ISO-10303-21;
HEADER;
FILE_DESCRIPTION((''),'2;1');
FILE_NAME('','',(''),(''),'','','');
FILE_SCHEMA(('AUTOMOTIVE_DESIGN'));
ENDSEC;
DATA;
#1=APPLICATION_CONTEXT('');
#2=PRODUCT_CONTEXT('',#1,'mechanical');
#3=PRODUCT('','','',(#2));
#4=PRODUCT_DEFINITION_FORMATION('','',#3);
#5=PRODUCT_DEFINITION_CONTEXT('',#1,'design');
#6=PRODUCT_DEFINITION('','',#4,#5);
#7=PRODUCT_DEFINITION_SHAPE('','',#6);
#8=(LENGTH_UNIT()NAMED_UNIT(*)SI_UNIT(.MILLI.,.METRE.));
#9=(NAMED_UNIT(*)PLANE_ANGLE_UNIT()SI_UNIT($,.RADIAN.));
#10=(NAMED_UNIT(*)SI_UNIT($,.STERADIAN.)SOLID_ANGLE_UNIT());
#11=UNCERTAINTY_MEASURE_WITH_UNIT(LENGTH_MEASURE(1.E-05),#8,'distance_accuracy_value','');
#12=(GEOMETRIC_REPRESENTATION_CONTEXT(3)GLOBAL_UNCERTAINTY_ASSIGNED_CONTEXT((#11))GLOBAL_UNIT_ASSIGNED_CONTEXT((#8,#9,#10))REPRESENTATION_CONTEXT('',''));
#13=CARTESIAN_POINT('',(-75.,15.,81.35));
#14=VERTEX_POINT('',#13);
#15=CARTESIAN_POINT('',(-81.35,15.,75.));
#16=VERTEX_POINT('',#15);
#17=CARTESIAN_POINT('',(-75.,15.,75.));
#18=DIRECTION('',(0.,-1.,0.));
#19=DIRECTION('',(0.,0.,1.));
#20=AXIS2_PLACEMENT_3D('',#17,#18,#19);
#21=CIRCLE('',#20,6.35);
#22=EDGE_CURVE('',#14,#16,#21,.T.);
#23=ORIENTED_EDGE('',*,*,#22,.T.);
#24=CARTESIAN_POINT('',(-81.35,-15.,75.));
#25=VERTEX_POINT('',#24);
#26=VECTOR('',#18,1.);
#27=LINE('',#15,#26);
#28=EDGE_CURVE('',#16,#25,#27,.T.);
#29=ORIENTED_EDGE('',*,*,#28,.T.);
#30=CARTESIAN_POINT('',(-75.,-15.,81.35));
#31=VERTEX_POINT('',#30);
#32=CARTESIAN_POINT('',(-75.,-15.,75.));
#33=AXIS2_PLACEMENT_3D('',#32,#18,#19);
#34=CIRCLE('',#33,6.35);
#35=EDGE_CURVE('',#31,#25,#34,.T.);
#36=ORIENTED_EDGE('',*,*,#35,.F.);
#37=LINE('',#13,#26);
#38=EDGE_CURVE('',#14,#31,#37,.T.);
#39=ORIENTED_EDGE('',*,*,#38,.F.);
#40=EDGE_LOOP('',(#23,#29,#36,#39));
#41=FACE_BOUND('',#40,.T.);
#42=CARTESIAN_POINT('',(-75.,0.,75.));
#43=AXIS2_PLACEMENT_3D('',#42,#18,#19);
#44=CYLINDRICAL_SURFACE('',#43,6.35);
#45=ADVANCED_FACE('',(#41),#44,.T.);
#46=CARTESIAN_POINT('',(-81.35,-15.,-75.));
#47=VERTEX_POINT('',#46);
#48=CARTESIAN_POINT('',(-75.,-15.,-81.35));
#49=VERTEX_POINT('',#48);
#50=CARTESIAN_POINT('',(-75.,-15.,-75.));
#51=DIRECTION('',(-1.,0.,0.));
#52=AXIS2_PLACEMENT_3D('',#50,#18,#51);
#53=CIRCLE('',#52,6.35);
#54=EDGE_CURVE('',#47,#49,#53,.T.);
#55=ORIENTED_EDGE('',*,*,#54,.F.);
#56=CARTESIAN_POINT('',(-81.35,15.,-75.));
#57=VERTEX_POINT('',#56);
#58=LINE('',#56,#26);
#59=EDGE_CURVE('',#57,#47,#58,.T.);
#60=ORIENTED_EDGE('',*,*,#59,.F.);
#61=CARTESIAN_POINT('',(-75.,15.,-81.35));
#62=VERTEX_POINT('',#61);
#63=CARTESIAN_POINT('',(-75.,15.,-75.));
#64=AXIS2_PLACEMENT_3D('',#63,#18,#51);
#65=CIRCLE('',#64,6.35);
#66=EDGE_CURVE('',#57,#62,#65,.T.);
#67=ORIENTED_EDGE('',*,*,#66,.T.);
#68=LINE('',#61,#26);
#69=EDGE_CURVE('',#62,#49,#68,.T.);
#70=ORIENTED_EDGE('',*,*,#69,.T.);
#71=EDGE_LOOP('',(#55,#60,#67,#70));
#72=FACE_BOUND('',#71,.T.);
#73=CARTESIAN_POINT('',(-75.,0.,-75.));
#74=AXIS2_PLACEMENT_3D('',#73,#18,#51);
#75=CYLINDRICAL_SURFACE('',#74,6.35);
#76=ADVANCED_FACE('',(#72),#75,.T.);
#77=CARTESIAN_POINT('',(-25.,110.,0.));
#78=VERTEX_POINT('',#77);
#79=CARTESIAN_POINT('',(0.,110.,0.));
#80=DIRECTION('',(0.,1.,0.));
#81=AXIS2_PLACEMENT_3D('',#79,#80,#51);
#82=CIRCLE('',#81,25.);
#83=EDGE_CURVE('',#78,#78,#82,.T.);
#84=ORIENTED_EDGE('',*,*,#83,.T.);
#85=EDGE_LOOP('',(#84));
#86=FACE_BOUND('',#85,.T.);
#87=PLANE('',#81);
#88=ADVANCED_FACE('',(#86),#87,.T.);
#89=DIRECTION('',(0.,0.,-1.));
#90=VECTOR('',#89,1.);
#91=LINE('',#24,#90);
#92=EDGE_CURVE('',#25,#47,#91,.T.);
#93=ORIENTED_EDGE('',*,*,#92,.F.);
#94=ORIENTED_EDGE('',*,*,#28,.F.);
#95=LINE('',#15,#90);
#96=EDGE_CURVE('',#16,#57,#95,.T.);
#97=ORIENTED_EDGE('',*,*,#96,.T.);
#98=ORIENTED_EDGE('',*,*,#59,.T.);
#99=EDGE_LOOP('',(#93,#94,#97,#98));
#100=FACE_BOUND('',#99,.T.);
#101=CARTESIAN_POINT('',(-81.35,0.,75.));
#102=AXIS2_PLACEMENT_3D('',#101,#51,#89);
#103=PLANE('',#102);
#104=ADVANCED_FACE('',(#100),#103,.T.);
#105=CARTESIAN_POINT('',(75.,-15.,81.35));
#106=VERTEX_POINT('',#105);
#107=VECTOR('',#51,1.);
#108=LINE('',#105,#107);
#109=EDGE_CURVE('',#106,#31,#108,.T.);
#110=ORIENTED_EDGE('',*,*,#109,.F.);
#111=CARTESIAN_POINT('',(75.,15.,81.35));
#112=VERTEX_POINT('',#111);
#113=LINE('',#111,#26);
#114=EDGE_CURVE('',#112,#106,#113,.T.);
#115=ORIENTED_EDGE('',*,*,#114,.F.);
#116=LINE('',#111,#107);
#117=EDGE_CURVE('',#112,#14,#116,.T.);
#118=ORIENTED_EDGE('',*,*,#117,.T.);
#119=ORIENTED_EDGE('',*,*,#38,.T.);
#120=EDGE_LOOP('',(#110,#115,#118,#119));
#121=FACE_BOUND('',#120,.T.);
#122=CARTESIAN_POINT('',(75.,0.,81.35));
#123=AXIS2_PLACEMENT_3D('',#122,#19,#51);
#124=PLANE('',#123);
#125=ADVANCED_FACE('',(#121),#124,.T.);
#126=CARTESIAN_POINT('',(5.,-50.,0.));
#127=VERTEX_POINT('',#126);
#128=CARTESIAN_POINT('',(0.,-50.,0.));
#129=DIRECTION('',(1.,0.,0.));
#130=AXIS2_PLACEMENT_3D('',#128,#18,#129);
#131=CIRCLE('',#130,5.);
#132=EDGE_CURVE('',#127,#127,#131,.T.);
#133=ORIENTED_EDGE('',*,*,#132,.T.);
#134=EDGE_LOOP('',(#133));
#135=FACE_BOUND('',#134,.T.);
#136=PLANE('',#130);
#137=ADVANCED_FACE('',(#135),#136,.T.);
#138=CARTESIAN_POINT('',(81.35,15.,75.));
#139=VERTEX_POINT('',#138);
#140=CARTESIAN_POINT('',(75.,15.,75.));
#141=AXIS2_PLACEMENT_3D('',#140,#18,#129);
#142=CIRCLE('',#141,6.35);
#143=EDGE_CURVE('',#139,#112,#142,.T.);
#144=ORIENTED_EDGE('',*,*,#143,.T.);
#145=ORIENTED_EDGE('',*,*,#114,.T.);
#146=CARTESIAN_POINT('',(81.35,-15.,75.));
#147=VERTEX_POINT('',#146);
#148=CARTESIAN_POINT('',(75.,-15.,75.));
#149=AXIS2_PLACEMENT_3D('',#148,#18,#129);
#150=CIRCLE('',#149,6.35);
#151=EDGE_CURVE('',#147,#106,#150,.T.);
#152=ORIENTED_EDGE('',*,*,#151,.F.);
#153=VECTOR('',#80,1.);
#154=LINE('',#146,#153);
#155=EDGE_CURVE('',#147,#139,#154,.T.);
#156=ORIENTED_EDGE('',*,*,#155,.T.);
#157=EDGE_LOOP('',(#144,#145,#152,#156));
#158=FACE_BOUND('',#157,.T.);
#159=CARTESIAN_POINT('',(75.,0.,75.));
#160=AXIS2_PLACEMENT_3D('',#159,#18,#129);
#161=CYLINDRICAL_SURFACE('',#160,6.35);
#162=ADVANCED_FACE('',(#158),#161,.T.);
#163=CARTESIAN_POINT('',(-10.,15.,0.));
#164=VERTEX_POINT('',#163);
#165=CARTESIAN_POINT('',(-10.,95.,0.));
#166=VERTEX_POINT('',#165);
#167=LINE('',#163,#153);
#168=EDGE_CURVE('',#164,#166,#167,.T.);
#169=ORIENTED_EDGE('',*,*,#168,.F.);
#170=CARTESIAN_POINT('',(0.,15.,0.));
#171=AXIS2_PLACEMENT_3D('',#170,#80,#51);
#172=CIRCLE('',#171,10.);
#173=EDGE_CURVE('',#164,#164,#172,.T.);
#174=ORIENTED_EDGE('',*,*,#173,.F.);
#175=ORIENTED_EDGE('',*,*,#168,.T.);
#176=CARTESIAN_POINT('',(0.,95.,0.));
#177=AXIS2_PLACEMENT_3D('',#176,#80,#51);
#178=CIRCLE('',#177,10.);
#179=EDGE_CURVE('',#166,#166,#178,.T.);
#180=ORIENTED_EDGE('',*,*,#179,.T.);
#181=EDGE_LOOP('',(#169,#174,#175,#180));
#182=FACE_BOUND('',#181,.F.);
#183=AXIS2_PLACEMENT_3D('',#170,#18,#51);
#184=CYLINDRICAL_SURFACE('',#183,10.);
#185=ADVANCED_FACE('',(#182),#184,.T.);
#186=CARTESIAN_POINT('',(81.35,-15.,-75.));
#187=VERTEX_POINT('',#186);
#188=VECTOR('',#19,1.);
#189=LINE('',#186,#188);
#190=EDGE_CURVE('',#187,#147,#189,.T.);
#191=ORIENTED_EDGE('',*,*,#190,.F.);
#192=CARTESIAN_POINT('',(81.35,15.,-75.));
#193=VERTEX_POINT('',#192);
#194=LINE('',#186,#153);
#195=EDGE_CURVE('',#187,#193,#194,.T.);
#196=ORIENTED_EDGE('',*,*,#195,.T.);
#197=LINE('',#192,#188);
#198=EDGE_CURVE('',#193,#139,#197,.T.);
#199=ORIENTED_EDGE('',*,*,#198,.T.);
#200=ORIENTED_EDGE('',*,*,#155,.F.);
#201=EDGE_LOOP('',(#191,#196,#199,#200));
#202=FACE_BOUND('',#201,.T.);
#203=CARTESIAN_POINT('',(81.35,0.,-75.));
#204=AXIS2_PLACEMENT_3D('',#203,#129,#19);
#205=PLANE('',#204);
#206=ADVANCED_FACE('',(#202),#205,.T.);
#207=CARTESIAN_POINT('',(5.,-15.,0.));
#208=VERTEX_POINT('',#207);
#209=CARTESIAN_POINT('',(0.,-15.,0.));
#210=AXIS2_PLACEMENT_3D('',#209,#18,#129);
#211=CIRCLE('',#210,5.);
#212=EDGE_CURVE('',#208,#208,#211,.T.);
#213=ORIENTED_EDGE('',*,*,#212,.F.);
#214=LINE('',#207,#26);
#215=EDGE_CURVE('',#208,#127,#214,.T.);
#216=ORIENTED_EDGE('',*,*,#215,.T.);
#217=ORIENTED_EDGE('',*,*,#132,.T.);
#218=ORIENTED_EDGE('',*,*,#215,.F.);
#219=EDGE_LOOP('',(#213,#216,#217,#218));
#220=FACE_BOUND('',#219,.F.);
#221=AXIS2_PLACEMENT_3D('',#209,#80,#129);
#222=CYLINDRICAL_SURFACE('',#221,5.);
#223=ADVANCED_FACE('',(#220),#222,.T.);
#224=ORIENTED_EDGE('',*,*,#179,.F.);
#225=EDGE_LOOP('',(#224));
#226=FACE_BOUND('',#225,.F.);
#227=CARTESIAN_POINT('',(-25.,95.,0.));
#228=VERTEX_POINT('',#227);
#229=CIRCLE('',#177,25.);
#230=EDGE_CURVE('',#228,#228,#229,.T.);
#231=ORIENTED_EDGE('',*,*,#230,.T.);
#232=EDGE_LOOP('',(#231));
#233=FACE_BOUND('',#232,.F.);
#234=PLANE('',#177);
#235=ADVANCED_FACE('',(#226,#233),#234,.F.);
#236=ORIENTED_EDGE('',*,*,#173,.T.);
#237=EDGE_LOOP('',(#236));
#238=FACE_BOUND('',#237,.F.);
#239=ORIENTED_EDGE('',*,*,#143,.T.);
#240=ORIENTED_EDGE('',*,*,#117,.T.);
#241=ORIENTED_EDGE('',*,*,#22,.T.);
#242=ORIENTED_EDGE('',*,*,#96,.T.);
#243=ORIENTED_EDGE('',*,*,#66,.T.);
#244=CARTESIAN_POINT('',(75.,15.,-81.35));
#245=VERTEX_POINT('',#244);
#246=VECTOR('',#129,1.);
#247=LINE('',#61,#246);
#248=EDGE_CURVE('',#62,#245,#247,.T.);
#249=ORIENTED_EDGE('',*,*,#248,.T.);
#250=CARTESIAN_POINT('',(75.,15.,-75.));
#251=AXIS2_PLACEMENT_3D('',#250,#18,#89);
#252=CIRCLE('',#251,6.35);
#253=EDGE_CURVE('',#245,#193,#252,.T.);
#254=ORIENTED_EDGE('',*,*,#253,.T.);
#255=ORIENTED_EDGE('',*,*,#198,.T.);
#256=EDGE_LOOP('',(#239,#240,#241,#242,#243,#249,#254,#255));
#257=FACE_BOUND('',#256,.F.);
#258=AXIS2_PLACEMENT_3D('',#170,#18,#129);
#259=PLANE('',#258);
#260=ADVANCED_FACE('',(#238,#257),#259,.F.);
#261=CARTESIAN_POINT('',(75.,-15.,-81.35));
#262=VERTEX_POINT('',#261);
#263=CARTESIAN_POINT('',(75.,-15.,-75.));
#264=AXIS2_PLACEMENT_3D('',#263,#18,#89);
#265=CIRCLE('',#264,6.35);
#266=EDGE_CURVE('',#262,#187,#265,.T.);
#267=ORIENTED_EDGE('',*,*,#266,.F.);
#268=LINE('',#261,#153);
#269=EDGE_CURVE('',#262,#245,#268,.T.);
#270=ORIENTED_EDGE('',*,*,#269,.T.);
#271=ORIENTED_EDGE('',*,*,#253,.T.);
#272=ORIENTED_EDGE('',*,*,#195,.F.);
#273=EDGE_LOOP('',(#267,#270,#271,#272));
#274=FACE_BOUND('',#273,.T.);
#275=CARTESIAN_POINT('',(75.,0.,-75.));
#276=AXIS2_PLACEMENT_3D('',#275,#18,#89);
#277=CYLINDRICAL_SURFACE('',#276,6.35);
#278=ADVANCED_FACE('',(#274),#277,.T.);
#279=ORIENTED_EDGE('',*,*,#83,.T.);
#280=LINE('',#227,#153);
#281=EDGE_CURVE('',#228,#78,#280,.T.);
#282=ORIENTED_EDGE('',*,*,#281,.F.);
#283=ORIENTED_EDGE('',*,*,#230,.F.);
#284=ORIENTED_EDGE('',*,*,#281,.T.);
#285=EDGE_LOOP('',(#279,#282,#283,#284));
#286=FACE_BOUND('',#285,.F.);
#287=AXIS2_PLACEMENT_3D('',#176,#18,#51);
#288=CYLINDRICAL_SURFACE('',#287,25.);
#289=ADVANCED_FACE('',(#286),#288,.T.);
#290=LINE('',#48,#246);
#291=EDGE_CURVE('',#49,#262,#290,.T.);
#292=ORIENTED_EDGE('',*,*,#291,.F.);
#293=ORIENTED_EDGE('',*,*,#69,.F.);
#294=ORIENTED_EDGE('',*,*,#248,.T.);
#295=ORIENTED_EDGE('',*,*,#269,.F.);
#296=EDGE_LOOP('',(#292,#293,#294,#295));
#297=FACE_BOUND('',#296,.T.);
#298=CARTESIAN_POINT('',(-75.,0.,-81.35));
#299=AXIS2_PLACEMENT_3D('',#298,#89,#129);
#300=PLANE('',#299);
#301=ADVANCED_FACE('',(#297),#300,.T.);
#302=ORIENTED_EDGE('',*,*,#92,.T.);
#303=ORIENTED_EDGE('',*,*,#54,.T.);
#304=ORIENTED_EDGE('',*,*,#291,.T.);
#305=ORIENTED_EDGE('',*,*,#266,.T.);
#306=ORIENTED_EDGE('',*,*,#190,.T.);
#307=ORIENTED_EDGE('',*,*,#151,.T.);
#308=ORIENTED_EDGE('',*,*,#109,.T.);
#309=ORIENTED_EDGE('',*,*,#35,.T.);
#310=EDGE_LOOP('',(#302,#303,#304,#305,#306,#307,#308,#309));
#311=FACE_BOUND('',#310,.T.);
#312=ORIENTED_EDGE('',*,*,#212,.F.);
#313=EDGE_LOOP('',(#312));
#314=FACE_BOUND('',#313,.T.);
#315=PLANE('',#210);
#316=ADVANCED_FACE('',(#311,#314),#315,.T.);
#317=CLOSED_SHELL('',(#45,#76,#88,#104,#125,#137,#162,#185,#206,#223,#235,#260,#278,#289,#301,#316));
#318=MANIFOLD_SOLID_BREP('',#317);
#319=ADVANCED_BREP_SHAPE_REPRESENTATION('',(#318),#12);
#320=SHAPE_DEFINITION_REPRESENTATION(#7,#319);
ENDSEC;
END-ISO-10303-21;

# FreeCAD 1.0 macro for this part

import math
import FreeCAD as App
import Part
import Sketcher
Q = App.Units.Quantity

doc = App.newDocument("Part")
body = doc.addObject("PartDesign::Body", "Body")

sketch1 = body.newObject("Sketcher::SketchObject", "Sketch")
sketch1.AttachmentSupport = (doc.getObject("XZ_Plane"), [""])
sketch1.MapMode = "FlatFace"
sketch1.addGeometry(Part.ArcOfCircle(Part.Circle(App.Vector(75, 75, 0), App.Vector(0, 0, 1), 6), math.radians(0), math.radians(90)), False)
sketch1.addGeometry(Part.LineSegment(App.Vector(75, 81, 0), App.Vector(-75, 81, 0)), False)
sketch1.addGeometry(Part.ArcOfCircle(Part.Circle(App.Vector(-75, 75, 0), App.Vector(0, 0, 1), 6), math.radians(90), math.radians(180)), False)
sketch1.addGeometry(Part.LineSegment(App.Vector(-81, 75, 0), App.Vector(-81, -75, 0)), False)
sketch1.addGeometry(Part.ArcOfCircle(Part.Circle(App.Vector(-75, -75, 0), App.Vector(0, 0, 1), 6), math.radians(180), math.radians(270)), False)
sketch1.addGeometry(Part.LineSegment(App.Vector(-75, -81, 0), App.Vector(75, -81, 0)), False)
sketch1.addGeometry(Part.ArcOfCircle(Part.Circle(App.Vector(75, -75, 0), App.Vector(0, 0, 1), 6), math.radians(-90), math.radians(0)), False)
sketch1.addGeometry(Part.LineSegment(App.Vector(81, -75, 0), App.Vector(81, 75, 0)), False)
sketch1.addConstraint(Sketcher.Constraint("Tangent", 0, 2, 1, 1))
sketch1.addConstraint(Sketcher.Constraint("Tangent", 1, 2, 2, 1))
sketch1.addConstraint(Sketcher.Constraint("Tangent", 2, 2, 3, 1))
sketch1.addConstraint(Sketcher.Constraint("Tangent", 3, 2, 4, 1))
sketch1.addConstraint(Sketcher.Constraint("Tangent", 4, 2, 5, 1))
sketch1.addConstraint(Sketcher.Constraint("Tangent", 5, 2, 6, 1))
sketch1.addConstraint(Sketcher.Constraint("Tangent", 6, 2, 7, 1))
sketch1.addConstraint(Sketcher.Constraint("Tangent", 7, 2, 0, 1))
sketch1.addConstraint(Sketcher.Constraint("Horizontal", 1))
sketch1.addConstraint(Sketcher.Constraint("Vertical", 3))
sketch1.addConstraint(Sketcher.Constraint("Horizontal", 5))
sketch1.addConstraint(Sketcher.Constraint("Vertical", 7))
sketch1.addConstraint(Sketcher.Constraint("Equal", 0, 2))
sketch1.addConstraint(Sketcher.Constraint("Equal", 2, 4))
sketch1.addConstraint(Sketcher.Constraint("Equal", 4, 6))
sketch1.addConstraint(Sketcher.Constraint("Symmetric", 0, 3, 4, 3, -1, 1))
sketch1.addConstraint(Sketcher.Constraint("Equal", 5, 3))
sketch1.addConstraint(Sketcher.Constraint("DistanceX", 1, 2, 1, 1, Q("150 mm")))
sketch1.addConstraint(Sketcher.Constraint("Radius", 0, Q("6.35 mm")))
pad1 = body.newObject("PartDesign::Pad", "Pad")
pad1.Profile = sketch1
pad1.Length = 30
pad1.Midplane = True

sketch2 = body.newObject("Sketcher::SketchObject", "Sketch001")
sketch2.AttachmentSupport = (doc.getObject("XZ_Plane"), [""])
sketch2.MapMode = "FlatFace"
sketch2.AttachmentOffset = App.Placement(App.Vector(0, 0, 15), App.Rotation())
sketch2.addGeometry(Part.Circle(App.Vector(0, 0, 0), App.Vector(0, 0, 1), 5), False)
sketch2.addConstraint(Sketcher.Constraint("Coincident", 0, 3, -1, 1))
sketch2.addConstraint(Sketcher.Constraint("Diameter", 0, Q("10 mm")))
pad2 = body.newObject("PartDesign::Pad", "Pad001")
pad2.Profile = sketch2
pad2.Length = 35

sketch3 = body.newObject("Sketcher::SketchObject", "Sketch002")
sketch3.AttachmentSupport = (doc.getObject("XZ_Plane"), [""])
sketch3.MapMode = "FlatFace"
sketch3.AttachmentOffset = App.Placement(App.Vector(0, 0, -15), App.Rotation())
sketch3.addGeometry(Part.Circle(App.Vector(0, 0, 0), App.Vector(0, 0, 1), 10), False)
sketch3.addConstraint(Sketcher.Constraint("Coincident", 0, 3, -1, 1))
sketch3.addConstraint(Sketcher.Constraint("Diameter", 0, Q("20 mm")))
pad3 = body.newObject("PartDesign::Pad", "Pad002")
pad3.Profile = sketch3
pad3.Length = 80
pad3.Reversed = True

sketch4 = body.newObject("Sketcher::SketchObject", "Sketch003")
sketch4.AttachmentSupport = (doc.getObject("XZ_Plane"), [""])
sketch4.MapMode = "FlatFace"
sketch4.AttachmentOffset = App.Placement(App.Vector(0, 0, -95), App.Rotation())
sketch4.addGeometry(Part.Circle(App.Vector(0, 0, 0), App.Vector(0, 0, 1), 25), False)
sketch4.addConstraint(Sketcher.Constraint("Coincident", 0, 3, -1, 1))
sketch4.addConstraint(Sketcher.Constraint("Diameter", 0, Q("50 mm")))
pad4 = body.newObject("PartDesign::Pad", "Pad003")
pad4.Profile = sketch4
pad4.Length = 15
pad4.Reversed = True

doc.recompute()
